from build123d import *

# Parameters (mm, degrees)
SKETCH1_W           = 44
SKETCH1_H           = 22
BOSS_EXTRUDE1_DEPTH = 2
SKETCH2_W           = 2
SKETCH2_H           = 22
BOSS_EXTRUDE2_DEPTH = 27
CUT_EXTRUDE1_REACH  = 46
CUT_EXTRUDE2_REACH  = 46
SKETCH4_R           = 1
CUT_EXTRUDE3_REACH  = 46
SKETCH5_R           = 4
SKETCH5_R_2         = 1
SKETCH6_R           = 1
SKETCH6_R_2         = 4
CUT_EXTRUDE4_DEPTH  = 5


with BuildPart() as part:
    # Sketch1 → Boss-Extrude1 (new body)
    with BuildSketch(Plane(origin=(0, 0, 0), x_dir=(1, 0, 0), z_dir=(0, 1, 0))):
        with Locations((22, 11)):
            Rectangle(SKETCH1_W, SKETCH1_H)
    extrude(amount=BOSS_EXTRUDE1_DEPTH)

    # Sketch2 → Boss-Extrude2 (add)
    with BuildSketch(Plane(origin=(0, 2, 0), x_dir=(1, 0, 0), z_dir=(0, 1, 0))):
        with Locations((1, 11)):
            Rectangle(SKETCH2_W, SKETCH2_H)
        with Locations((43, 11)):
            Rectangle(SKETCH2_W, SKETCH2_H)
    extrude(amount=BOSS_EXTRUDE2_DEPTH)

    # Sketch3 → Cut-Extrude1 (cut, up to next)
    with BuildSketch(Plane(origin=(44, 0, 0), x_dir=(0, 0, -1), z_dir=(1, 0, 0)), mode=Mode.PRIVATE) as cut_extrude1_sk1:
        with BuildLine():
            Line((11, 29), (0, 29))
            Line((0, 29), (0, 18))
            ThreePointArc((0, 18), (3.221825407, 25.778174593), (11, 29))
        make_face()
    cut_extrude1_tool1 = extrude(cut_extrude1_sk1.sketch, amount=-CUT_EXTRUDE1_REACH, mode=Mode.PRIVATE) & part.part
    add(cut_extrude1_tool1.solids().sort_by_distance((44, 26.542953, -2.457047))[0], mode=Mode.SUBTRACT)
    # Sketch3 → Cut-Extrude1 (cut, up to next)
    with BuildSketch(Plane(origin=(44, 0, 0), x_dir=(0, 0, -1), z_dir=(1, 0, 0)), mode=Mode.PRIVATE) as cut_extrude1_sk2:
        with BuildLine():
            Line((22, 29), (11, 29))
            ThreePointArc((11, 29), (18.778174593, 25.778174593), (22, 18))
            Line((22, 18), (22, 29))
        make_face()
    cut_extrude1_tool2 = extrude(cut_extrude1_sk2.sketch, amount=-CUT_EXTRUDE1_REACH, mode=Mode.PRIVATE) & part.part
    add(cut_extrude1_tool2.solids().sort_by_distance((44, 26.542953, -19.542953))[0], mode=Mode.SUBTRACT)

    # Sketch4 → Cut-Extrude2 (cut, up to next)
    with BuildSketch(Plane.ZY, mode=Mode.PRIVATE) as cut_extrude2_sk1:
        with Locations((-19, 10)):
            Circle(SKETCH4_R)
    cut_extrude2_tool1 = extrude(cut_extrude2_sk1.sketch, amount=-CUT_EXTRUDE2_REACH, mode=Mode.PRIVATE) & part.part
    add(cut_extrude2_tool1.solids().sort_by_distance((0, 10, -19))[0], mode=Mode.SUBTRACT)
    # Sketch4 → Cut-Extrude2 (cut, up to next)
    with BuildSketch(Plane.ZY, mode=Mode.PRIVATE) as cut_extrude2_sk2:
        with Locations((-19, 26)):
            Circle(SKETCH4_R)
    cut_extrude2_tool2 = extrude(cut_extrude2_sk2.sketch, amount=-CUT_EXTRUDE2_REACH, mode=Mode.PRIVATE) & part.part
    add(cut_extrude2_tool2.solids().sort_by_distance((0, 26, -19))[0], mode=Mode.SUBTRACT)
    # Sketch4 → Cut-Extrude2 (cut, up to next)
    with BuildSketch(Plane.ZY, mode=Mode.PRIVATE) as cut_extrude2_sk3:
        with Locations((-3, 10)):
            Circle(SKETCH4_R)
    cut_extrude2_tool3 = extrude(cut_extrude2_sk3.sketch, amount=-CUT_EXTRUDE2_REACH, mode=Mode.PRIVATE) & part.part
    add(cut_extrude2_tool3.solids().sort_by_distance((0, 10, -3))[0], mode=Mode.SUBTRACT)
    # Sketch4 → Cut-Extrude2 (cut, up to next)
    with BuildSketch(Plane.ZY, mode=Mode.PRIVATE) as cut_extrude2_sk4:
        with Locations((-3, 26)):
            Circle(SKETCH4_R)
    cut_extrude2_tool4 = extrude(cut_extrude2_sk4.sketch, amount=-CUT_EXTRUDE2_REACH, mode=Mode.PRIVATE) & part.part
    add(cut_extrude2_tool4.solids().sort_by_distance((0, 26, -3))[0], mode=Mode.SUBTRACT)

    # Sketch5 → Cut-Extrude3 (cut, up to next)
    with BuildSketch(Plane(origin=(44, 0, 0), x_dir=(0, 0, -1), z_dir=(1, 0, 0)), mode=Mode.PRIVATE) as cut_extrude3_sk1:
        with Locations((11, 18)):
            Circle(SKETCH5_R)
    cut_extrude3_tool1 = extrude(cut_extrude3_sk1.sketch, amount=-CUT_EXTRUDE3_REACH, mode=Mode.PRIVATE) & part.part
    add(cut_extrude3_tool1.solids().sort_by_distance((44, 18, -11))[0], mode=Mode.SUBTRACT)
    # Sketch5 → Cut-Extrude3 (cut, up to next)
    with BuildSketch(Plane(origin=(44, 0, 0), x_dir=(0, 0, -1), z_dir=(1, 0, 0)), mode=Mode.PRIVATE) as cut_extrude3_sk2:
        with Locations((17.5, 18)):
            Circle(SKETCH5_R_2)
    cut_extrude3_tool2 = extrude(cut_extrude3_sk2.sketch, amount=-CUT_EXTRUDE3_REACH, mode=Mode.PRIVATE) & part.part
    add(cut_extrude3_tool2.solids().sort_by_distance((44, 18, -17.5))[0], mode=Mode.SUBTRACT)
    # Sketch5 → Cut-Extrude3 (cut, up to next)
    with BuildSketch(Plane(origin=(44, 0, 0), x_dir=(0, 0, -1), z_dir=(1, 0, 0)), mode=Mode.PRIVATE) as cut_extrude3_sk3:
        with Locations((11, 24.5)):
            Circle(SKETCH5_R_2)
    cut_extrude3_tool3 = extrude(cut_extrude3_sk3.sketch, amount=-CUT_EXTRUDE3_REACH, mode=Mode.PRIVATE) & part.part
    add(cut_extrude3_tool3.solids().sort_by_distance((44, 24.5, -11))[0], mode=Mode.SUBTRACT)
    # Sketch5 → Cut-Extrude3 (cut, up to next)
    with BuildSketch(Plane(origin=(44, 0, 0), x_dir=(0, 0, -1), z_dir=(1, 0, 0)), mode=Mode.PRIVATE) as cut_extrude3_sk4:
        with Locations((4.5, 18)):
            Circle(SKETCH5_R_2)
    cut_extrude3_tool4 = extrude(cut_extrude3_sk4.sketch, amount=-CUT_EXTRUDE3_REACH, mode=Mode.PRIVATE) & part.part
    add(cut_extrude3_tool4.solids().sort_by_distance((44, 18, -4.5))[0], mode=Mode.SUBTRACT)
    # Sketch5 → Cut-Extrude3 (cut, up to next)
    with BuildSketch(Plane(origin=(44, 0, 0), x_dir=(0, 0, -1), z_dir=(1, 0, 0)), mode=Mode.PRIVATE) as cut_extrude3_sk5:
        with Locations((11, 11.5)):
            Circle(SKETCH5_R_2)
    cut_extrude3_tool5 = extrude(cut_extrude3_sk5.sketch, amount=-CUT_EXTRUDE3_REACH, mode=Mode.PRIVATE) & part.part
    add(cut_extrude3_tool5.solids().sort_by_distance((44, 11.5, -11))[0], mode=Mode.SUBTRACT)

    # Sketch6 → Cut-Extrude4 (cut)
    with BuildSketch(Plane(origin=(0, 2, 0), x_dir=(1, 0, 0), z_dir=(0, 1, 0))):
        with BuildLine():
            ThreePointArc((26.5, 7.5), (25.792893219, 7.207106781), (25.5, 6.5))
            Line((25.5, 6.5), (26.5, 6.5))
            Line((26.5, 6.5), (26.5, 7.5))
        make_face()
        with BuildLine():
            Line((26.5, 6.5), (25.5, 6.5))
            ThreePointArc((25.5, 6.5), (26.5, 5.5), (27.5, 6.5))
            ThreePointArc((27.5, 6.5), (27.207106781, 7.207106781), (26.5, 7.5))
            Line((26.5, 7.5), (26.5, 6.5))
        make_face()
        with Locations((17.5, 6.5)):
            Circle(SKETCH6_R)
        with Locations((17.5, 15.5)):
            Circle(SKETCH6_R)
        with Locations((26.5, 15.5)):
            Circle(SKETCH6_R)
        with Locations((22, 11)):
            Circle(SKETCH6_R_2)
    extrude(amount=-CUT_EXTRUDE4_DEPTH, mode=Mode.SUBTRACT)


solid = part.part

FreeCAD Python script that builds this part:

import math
import FreeCAD as App
import Part
import Sketcher
from FreeCAD import Vector


def add_polygon(sketch, points):
    """Adds a closed chain of lines whose ends are joined by coincident constraints."""
    first, n = sketch.GeometryCount, len(points)
    for a, b in zip(points, points[1:] + points[:1]):
        sketch.addGeometry(Part.LineSegment(App.Vector(*a, 0), App.Vector(*b, 0)), False)
    for i in range(n):
        sketch.addConstraint(Sketcher.Constraint("Coincident", first + i, 2, first + (i + 1) % n, 1))

doc = App.newDocument("Part")
body = doc.addObject("PartDesign::Body", "Body")

# Sketch on XZ plane
sketch1 = body.newObject("Sketcher::SketchObject", "Sketch")
sketch1.AttachmentSupport = (doc.getObject("XZ_Plane"), [""])
sketch1.MapMode = "FlatFace"
add_polygon(sketch1, [(0, -22), (0, 0), (44, 0), (44, -22)])  # lines 0-3
sketch1.addConstraint([
    Sketcher.Constraint("Vertical", 0),
    Sketcher.Constraint("Horizontal", 1),
    Sketcher.Constraint("Vertical", 2),
    Sketcher.Constraint("Horizontal", 3),
    Sketcher.Constraint("Coincident", 0, 2, -1, 1),
    Sketcher.Constraint("DistanceX", 1, 1, 1, 2, 44.0),
    Sketcher.Constraint("DistanceY", 0, 1, 0, 2, 22.0),
])
pad1 = body.newObject("PartDesign::Pad", "Pad")
pad1.Profile = sketch1
pad1.Length = 2
pad1.Reversed = True

# Sketch on XZ plane
sketch2 = body.newObject("Sketcher::SketchObject", "Sketch001")
sketch2.AttachmentSupport = (doc.getObject("XZ_Plane"), [""])
sketch2.MapMode = "FlatFace"
sketch2.AttachmentOffset = App.Placement(Vector(0, 0, -2), App.Rotation())
add_polygon(sketch2, [(0, -22), (0, 0), (2, 0), (2, -22)])  # lines 0-3
add_polygon(sketch2, [(42, -22), (42, 0), (44, 0), (44, -22)])  # lines 4-7
sketch2.addConstraint([
    Sketcher.Constraint("Vertical", 0),
    Sketcher.Constraint("Horizontal", 1),
    Sketcher.Constraint("Vertical", 2),
    Sketcher.Constraint("Horizontal", 3),
    Sketcher.Constraint("Vertical", 4),
    Sketcher.Constraint("Horizontal", 5),
    Sketcher.Constraint("Vertical", 6),
    Sketcher.Constraint("Horizontal", 7),
    Sketcher.Constraint("Coincident", 0, 2, -1, 1),
    Sketcher.Constraint("PointOnObject", 4, 2, -1),
    Sketcher.Constraint("Horizontal", 3, 2, 6, 2),
    Sketcher.Constraint("Equal", 3, 5),
    Sketcher.Constraint("DistanceX", 1, 1, 1, 2, 2.0),
    Sketcher.Constraint("DistanceY", 0, 1, 0, 2, 22.0),
    Sketcher.Constraint("DistanceX", -1, 1, 4, 2, 42.0),
])
pad2 = body.newObject("PartDesign::Pad", "Pad001")
pad2.Profile = sketch2
pad2.Length = 27
pad2.Reversed = True

# Sketch on YZ plane
sketch3 = body.newObject("Sketcher::SketchObject", "Sketch002")
sketch3.AttachmentSupport = (doc.getObject("YZ_Plane"), [""])
sketch3.MapMode = "FlatFace"
sketch3.AttachmentOffset = App.Placement(Vector(0, 0, 44), App.Rotation())
sketch3.addGeometry([
    Part.LineSegment(Vector(29, -11, 0), Vector(29, 0, 0)),
    Part.LineSegment(Vector(29, 0, 0), Vector(18, 0, 0)),
    Part.ArcOfCircle(Part.Circle(Vector(18, -11, 0), Vector(0, 0, 1), 11), math.radians(0), math.radians(90)),
], False)
sketch3.addConstraint([
    Sketcher.Constraint("Coincident", 0, 2, 1, 1),
    Sketcher.Constraint("Tangent", 1, 2, 2, 2),
    Sketcher.Constraint("Tangent", 2, 1, 0, 1),
    Sketcher.Constraint("Vertical", 0),
    Sketcher.Constraint("Horizontal", 1),
    Sketcher.Constraint("PointOnObject", 0, 2, -1),
    Sketcher.Constraint("Radius", 2, 11.0),
    Sketcher.Constraint("DistanceX", -1, 1, 2, 3, 18.0),
])
pocket1 = body.newObject("PartDesign::Pocket", "Pocket")
pocket1.Profile = sketch3
pocket1.Type = "UpToFirst"

# Sketch on YZ plane
sketch4 = body.newObject("Sketcher::SketchObject", "Sketch003")
sketch4.AttachmentSupport = (doc.getObject("YZ_Plane"), [""])
sketch4.MapMode = "FlatFace"
sketch4.AttachmentOffset = App.Placement(Vector(0, 0, 44), App.Rotation())
sketch4.addGeometry([
    Part.LineSegment(Vector(29, -22, 0), Vector(29, -11, 0)),
    Part.ArcOfCircle(Part.Circle(Vector(18, -11, 0), Vector(0, 0, 1), 11), math.radians(-90), math.radians(0)),
    Part.LineSegment(Vector(18, -22, 0), Vector(29, -22, 0)),
], False)
sketch4.addConstraint([
    Sketcher.Constraint("Tangent", 0, 2, 1, 2),
    Sketcher.Constraint("Tangent", 1, 1, 2, 1),
    Sketcher.Constraint("Coincident", 2, 2, 0, 1),
    Sketcher.Constraint("Vertical", 0),
    Sketcher.Constraint("Horizontal", 2),
    Sketcher.Constraint("Radius", 1, 11.0),
    Sketcher.Constraint("DistanceX", -1, 1, 1, 3, 18.0),
    Sketcher.Constraint("DistanceY", 1, 3, -1, 1, 11.0),
])
pocket2 = body.newObject("PartDesign::Pocket", "Pocket001")
pocket2.Profile = sketch4
pocket2.Type = "UpToFirst"

# Sketch on YZ plane
sketch5 = body.newObject("Sketcher::SketchObject", "Sketch004")
sketch5.AttachmentSupport = (doc.getObject("YZ_Plane"), [""])
sketch5.MapMode = "FlatFace"
sketch5.addGeometry(Part.Circle(Vector(10, -19, 0), Vector(0, 0, 1), 1), False)
sketch5.addConstraint([
    Sketcher.Constraint("Diameter", 0, 2.0),
    Sketcher.Constraint("DistanceX", -1, 1, 0, 3, 10.0),
    Sketcher.Constraint("DistanceY", 0, 3, -1, 1, 19.0),
])
pocket3 = body.newObject("PartDesign::Pocket", "Pocket002")
pocket3.Profile = sketch5
pocket3.Type = "UpToFirst"
pocket3.Reversed = True

# Sketch on YZ plane
sketch6 = body.newObject("Sketcher::SketchObject", "Sketch005")
sketch6.AttachmentSupport = (doc.getObject("YZ_Plane"), [""])
sketch6.MapMode = "FlatFace"
sketch6.addGeometry(Part.Circle(Vector(26, -19, 0), Vector(0, 0, 1), 1), False)
sketch6.addConstraint([
    Sketcher.Constraint("Diameter", 0, 2.0),
    Sketcher.Constraint("DistanceX", -1, 1, 0, 3, 26.0),
    Sketcher.Constraint("DistanceY", 0, 3, -1, 1, 19.0),
])
pocket4 = body.newObject("PartDesign::Pocket", "Pocket003")
pocket4.Profile = sketch6
pocket4.Type = "UpToFirst"
pocket4.Reversed = True

# Sketch on YZ plane
sketch7 = body.newObject("Sketcher::SketchObject", "Sketch006")
sketch7.AttachmentSupport = (doc.getObject("YZ_Plane"), [""])
sketch7.MapMode = "FlatFace"
sketch7.addGeometry(Part.Circle(Vector(10, -3, 0), Vector(0, 0, 1), 1), False)
sketch7.addConstraint([
    Sketcher.Constraint("Diameter", 0, 2.0),
    Sketcher.Constraint("DistanceX", -1, 1, 0, 3, 10.0),
    Sketcher.Constraint("DistanceY", 0, 3, -1, 1, 3.0),
])
pocket5 = body.newObject("PartDesign::Pocket", "Pocket004")
pocket5.Profile = sketch7
pocket5.Type = "UpToFirst"
pocket5.Reversed = True

# Sketch on YZ plane
sketch8 = body.newObject("Sketcher::SketchObject", "Sketch007")
sketch8.AttachmentSupport = (doc.getObject("YZ_Plane"), [""])
sketch8.MapMode = "FlatFace"
sketch8.addGeometry(Part.Circle(Vector(26, -3, 0), Vector(0, 0, 1), 1), False)
sketch8.addConstraint([
    Sketcher.Constraint("Diameter", 0, 2.0),
    Sketcher.Constraint("DistanceX", -1, 1, 0, 3, 26.0),
    Sketcher.Constraint("DistanceY", 0, 3, -1, 1, 3.0),
])
pocket6 = body.newObject("PartDesign::Pocket", "Pocket005")
pocket6.Profile = sketch8
pocket6.Type = "UpToFirst"
pocket6.Reversed = True

# Sketch on YZ plane
sketch9 = body.newObject("Sketcher::SketchObject", "Sketch008")
sketch9.AttachmentSupport = (doc.getObject("YZ_Plane"), [""])
sketch9.MapMode = "FlatFace"
sketch9.AttachmentOffset = App.Placement(Vector(0, 0, 44), App.Rotation())
sketch9.addGeometry(Part.Circle(Vector(18, -11, 0), Vector(0, 0, 1), 4), False)
sketch9.addConstraint([
    Sketcher.Constraint("Diameter", 0, 8.0),
    Sketcher.Constraint("DistanceX", -1, 1, 0, 3, 18.0),
    Sketcher.Constraint("DistanceY", 0, 3, -1, 1, 11.0),
])
pocket7 = body.newObject("PartDesign::Pocket", "Pocket006")
pocket7.Profile = sketch9
pocket7.Type = "UpToFirst"

# Sketch on YZ plane
sketch10 = body.newObject("Sketcher::SketchObject", "Sketch009")
sketch10.AttachmentSupport = (doc.getObject("YZ_Plane"), [""])
sketch10.MapMode = "FlatFace"
sketch10.AttachmentOffset = App.Placement(Vector(0, 0, 44), App.Rotation())
sketch10.addGeometry(Part.Circle(Vector(18, -17.5, 0), Vector(0, 0, 1), 1), False)
sketch10.addConstraint([
    Sketcher.Constraint("Diameter", 0, 2.0),
    Sketcher.Constraint("DistanceX", -1, 1, 0, 3, 18.0),
    Sketcher.Constraint("DistanceY", 0, 3, -1, 1, 17.5),
])
pocket8 = body.newObject("PartDesign::Pocket", "Pocket007")
pocket8.Profile = sketch10
pocket8.Type = "UpToFirst"

# Sketch on YZ plane
sketch11 = body.newObject("Sketcher::SketchObject", "Sketch010")
sketch11.AttachmentSupport = (doc.getObject("YZ_Plane"), [""])
sketch11.MapMode = "FlatFace"
sketch11.AttachmentOffset = App.Placement(Vector(0, 0, 44), App.Rotation())
sketch11.addGeometry(Part.Circle(Vector(24.5, -11, 0), Vector(0, 0, 1), 1), False)
sketch11.addConstraint([
    Sketcher.Constraint("Diameter", 0, 2.0),
    Sketcher.Constraint("DistanceY", 0, 3, -1, 1, 11.0),
    Sketcher.Constraint("DistanceX", -1, 1, 0, 3, 24.5),
])
pocket9 = body.newObject("PartDesign::Pocket", "Pocket008")
pocket9.Profile = sketch11
pocket9.Type = "UpToFirst"

# Sketch on YZ plane
sketch12 = body.newObject("Sketcher::SketchObject", "Sketch011")
sketch12.AttachmentSupport = (doc.getObject("YZ_Plane"), [""])
sketch12.MapMode = "FlatFace"
sketch12.AttachmentOffset = App.Placement(Vector(0, 0, 44), App.Rotation())
sketch12.addGeometry(Part.Circle(Vector(18, -4.5, 0), Vector(0, 0, 1), 1), False)
sketch12.addConstraint([
    Sketcher.Constraint("Diameter", 0, 2.0),
    Sketcher.Constraint("DistanceX", -1, 1, 0, 3, 18.0),
    Sketcher.Constraint("DistanceY", 0, 3, -1, 1, 4.5),
])
pocket10 = body.newObject("PartDesign::Pocket", "Pocket009")
pocket10.Profile = sketch12
pocket10.Type = "UpToFirst"

# Sketch on YZ plane
sketch13 = body.newObject("Sketcher::SketchObject", "Sketch012")
sketch13.AttachmentSupport = (doc.getObject("YZ_Plane"), [""])
sketch13.MapMode = "FlatFace"
sketch13.AttachmentOffset = App.Placement(Vector(0, 0, 44), App.Rotation())
sketch13.addGeometry(Part.Circle(Vector(11.5, -11, 0), Vector(0, 0, 1), 1), False)
sketch13.addConstraint([
    Sketcher.Constraint("Diameter", 0, 2.0),
    Sketcher.Constraint("DistanceY", 0, 3, -1, 1, 11.0),
    Sketcher.Constraint("DistanceX", -1, 1, 0, 3, 11.5),
])
pocket11 = body.newObject("PartDesign::Pocket", "Pocket010")
pocket11.Profile = sketch13
pocket11.Type = "UpToFirst"

# Sketch on XZ plane
sketch14 = body.newObject("Sketcher::SketchObject", "Sketch013")
sketch14.AttachmentSupport = (doc.getObject("XZ_Plane"), [""])
sketch14.MapMode = "FlatFace"
sketch14.AttachmentOffset = App.Placement(Vector(0, 0, -2), App.Rotation())
sketch14.addGeometry([
    Part.ArcOfCircle(Part.Circle(Vector(26.5, -6.5, 0), Vector(0, 0, 1), 1), math.radians(-180), math.radians(-90)),  # 0
    Part.ArcOfCircle(Part.Circle(Vector(26.5, -6.5, 0), Vector(0, 0, 1), 1), math.radians(0), math.radians(180)),  # 1
    Part.ArcOfCircle(Part.Circle(Vector(26.5, -6.5, 0), Vector(0, 0, 1), 1), math.radians(-90), math.radians(0)),  # 2
    Part.Circle(Vector(17.5, -6.5, 0), Vector(0, 0, 1), 1),  # 3
    Part.Circle(Vector(17.5, -15.5, 0), Vector(0, 0, 1), 1),  # 4
    Part.Circle(Vector(26.5, -15.5, 0), Vector(0, 0, 1), 1),  # 5
    Part.Circle(Vector(22, -11, 0), Vector(0, 0, 1), 4),  # 6
], False)
sketch14.addConstraint([
    Sketcher.Constraint("Tangent", 0, 1, 1, 2),
    Sketcher.Constraint("Tangent", 1, 1, 2, 2),
    Sketcher.Constraint("Tangent", 2, 1, 0, 2),
    Sketcher.Constraint("Equal", 2, 3),
    Sketcher.Constraint("Equal", 3, 4),
    Sketcher.Constraint("Equal", 4, 5),
    Sketcher.Constraint("Horizontal", 2, 3, 3, 3),
    Sketcher.Constraint("Horizontal", 4, 3, 5, 3),
    Sketcher.Constraint("Horizontal", 3, 3, 0, 1),
    Sketcher.Constraint("Horizontal", 0, 1, 1, 1),
    Sketcher.Constraint("Vertical", 3, 3, 4, 3),
    Sketcher.Constraint("Vertical", 2, 3, 5, 3),
    Sketcher.Constraint("Vertical", 5, 3, 2, 1),
    Sketcher.Constraint("Diameter", 3, 2.0),
    Sketcher.Constraint("Diameter", 6, 8.0),
    Sketcher.Constraint("DistanceX", -1, 1, 6, 3, 22.0),
    Sketcher.Constraint("DistanceY", 6, 3, -1, 1, 11.0),
    Sketcher.Constraint("DistanceX", 3, 3, 2, 3, 9.0),
    Sketcher.Constraint("DistanceY", 4, 3, 3, 3, 9.0),
    Sketcher.Constraint("DistanceX", -1, 1, 0, 3, 26.5),
    Sketcher.Constraint("DistanceY", 0, 3, -1, 1, 6.5),
])
pocket12 = body.newObject("PartDesign::Pocket", "Pocket011")
pocket12.Profile = sketch14
pocket12.Length = 5
pocket12.Reversed = True

doc.recompute()
